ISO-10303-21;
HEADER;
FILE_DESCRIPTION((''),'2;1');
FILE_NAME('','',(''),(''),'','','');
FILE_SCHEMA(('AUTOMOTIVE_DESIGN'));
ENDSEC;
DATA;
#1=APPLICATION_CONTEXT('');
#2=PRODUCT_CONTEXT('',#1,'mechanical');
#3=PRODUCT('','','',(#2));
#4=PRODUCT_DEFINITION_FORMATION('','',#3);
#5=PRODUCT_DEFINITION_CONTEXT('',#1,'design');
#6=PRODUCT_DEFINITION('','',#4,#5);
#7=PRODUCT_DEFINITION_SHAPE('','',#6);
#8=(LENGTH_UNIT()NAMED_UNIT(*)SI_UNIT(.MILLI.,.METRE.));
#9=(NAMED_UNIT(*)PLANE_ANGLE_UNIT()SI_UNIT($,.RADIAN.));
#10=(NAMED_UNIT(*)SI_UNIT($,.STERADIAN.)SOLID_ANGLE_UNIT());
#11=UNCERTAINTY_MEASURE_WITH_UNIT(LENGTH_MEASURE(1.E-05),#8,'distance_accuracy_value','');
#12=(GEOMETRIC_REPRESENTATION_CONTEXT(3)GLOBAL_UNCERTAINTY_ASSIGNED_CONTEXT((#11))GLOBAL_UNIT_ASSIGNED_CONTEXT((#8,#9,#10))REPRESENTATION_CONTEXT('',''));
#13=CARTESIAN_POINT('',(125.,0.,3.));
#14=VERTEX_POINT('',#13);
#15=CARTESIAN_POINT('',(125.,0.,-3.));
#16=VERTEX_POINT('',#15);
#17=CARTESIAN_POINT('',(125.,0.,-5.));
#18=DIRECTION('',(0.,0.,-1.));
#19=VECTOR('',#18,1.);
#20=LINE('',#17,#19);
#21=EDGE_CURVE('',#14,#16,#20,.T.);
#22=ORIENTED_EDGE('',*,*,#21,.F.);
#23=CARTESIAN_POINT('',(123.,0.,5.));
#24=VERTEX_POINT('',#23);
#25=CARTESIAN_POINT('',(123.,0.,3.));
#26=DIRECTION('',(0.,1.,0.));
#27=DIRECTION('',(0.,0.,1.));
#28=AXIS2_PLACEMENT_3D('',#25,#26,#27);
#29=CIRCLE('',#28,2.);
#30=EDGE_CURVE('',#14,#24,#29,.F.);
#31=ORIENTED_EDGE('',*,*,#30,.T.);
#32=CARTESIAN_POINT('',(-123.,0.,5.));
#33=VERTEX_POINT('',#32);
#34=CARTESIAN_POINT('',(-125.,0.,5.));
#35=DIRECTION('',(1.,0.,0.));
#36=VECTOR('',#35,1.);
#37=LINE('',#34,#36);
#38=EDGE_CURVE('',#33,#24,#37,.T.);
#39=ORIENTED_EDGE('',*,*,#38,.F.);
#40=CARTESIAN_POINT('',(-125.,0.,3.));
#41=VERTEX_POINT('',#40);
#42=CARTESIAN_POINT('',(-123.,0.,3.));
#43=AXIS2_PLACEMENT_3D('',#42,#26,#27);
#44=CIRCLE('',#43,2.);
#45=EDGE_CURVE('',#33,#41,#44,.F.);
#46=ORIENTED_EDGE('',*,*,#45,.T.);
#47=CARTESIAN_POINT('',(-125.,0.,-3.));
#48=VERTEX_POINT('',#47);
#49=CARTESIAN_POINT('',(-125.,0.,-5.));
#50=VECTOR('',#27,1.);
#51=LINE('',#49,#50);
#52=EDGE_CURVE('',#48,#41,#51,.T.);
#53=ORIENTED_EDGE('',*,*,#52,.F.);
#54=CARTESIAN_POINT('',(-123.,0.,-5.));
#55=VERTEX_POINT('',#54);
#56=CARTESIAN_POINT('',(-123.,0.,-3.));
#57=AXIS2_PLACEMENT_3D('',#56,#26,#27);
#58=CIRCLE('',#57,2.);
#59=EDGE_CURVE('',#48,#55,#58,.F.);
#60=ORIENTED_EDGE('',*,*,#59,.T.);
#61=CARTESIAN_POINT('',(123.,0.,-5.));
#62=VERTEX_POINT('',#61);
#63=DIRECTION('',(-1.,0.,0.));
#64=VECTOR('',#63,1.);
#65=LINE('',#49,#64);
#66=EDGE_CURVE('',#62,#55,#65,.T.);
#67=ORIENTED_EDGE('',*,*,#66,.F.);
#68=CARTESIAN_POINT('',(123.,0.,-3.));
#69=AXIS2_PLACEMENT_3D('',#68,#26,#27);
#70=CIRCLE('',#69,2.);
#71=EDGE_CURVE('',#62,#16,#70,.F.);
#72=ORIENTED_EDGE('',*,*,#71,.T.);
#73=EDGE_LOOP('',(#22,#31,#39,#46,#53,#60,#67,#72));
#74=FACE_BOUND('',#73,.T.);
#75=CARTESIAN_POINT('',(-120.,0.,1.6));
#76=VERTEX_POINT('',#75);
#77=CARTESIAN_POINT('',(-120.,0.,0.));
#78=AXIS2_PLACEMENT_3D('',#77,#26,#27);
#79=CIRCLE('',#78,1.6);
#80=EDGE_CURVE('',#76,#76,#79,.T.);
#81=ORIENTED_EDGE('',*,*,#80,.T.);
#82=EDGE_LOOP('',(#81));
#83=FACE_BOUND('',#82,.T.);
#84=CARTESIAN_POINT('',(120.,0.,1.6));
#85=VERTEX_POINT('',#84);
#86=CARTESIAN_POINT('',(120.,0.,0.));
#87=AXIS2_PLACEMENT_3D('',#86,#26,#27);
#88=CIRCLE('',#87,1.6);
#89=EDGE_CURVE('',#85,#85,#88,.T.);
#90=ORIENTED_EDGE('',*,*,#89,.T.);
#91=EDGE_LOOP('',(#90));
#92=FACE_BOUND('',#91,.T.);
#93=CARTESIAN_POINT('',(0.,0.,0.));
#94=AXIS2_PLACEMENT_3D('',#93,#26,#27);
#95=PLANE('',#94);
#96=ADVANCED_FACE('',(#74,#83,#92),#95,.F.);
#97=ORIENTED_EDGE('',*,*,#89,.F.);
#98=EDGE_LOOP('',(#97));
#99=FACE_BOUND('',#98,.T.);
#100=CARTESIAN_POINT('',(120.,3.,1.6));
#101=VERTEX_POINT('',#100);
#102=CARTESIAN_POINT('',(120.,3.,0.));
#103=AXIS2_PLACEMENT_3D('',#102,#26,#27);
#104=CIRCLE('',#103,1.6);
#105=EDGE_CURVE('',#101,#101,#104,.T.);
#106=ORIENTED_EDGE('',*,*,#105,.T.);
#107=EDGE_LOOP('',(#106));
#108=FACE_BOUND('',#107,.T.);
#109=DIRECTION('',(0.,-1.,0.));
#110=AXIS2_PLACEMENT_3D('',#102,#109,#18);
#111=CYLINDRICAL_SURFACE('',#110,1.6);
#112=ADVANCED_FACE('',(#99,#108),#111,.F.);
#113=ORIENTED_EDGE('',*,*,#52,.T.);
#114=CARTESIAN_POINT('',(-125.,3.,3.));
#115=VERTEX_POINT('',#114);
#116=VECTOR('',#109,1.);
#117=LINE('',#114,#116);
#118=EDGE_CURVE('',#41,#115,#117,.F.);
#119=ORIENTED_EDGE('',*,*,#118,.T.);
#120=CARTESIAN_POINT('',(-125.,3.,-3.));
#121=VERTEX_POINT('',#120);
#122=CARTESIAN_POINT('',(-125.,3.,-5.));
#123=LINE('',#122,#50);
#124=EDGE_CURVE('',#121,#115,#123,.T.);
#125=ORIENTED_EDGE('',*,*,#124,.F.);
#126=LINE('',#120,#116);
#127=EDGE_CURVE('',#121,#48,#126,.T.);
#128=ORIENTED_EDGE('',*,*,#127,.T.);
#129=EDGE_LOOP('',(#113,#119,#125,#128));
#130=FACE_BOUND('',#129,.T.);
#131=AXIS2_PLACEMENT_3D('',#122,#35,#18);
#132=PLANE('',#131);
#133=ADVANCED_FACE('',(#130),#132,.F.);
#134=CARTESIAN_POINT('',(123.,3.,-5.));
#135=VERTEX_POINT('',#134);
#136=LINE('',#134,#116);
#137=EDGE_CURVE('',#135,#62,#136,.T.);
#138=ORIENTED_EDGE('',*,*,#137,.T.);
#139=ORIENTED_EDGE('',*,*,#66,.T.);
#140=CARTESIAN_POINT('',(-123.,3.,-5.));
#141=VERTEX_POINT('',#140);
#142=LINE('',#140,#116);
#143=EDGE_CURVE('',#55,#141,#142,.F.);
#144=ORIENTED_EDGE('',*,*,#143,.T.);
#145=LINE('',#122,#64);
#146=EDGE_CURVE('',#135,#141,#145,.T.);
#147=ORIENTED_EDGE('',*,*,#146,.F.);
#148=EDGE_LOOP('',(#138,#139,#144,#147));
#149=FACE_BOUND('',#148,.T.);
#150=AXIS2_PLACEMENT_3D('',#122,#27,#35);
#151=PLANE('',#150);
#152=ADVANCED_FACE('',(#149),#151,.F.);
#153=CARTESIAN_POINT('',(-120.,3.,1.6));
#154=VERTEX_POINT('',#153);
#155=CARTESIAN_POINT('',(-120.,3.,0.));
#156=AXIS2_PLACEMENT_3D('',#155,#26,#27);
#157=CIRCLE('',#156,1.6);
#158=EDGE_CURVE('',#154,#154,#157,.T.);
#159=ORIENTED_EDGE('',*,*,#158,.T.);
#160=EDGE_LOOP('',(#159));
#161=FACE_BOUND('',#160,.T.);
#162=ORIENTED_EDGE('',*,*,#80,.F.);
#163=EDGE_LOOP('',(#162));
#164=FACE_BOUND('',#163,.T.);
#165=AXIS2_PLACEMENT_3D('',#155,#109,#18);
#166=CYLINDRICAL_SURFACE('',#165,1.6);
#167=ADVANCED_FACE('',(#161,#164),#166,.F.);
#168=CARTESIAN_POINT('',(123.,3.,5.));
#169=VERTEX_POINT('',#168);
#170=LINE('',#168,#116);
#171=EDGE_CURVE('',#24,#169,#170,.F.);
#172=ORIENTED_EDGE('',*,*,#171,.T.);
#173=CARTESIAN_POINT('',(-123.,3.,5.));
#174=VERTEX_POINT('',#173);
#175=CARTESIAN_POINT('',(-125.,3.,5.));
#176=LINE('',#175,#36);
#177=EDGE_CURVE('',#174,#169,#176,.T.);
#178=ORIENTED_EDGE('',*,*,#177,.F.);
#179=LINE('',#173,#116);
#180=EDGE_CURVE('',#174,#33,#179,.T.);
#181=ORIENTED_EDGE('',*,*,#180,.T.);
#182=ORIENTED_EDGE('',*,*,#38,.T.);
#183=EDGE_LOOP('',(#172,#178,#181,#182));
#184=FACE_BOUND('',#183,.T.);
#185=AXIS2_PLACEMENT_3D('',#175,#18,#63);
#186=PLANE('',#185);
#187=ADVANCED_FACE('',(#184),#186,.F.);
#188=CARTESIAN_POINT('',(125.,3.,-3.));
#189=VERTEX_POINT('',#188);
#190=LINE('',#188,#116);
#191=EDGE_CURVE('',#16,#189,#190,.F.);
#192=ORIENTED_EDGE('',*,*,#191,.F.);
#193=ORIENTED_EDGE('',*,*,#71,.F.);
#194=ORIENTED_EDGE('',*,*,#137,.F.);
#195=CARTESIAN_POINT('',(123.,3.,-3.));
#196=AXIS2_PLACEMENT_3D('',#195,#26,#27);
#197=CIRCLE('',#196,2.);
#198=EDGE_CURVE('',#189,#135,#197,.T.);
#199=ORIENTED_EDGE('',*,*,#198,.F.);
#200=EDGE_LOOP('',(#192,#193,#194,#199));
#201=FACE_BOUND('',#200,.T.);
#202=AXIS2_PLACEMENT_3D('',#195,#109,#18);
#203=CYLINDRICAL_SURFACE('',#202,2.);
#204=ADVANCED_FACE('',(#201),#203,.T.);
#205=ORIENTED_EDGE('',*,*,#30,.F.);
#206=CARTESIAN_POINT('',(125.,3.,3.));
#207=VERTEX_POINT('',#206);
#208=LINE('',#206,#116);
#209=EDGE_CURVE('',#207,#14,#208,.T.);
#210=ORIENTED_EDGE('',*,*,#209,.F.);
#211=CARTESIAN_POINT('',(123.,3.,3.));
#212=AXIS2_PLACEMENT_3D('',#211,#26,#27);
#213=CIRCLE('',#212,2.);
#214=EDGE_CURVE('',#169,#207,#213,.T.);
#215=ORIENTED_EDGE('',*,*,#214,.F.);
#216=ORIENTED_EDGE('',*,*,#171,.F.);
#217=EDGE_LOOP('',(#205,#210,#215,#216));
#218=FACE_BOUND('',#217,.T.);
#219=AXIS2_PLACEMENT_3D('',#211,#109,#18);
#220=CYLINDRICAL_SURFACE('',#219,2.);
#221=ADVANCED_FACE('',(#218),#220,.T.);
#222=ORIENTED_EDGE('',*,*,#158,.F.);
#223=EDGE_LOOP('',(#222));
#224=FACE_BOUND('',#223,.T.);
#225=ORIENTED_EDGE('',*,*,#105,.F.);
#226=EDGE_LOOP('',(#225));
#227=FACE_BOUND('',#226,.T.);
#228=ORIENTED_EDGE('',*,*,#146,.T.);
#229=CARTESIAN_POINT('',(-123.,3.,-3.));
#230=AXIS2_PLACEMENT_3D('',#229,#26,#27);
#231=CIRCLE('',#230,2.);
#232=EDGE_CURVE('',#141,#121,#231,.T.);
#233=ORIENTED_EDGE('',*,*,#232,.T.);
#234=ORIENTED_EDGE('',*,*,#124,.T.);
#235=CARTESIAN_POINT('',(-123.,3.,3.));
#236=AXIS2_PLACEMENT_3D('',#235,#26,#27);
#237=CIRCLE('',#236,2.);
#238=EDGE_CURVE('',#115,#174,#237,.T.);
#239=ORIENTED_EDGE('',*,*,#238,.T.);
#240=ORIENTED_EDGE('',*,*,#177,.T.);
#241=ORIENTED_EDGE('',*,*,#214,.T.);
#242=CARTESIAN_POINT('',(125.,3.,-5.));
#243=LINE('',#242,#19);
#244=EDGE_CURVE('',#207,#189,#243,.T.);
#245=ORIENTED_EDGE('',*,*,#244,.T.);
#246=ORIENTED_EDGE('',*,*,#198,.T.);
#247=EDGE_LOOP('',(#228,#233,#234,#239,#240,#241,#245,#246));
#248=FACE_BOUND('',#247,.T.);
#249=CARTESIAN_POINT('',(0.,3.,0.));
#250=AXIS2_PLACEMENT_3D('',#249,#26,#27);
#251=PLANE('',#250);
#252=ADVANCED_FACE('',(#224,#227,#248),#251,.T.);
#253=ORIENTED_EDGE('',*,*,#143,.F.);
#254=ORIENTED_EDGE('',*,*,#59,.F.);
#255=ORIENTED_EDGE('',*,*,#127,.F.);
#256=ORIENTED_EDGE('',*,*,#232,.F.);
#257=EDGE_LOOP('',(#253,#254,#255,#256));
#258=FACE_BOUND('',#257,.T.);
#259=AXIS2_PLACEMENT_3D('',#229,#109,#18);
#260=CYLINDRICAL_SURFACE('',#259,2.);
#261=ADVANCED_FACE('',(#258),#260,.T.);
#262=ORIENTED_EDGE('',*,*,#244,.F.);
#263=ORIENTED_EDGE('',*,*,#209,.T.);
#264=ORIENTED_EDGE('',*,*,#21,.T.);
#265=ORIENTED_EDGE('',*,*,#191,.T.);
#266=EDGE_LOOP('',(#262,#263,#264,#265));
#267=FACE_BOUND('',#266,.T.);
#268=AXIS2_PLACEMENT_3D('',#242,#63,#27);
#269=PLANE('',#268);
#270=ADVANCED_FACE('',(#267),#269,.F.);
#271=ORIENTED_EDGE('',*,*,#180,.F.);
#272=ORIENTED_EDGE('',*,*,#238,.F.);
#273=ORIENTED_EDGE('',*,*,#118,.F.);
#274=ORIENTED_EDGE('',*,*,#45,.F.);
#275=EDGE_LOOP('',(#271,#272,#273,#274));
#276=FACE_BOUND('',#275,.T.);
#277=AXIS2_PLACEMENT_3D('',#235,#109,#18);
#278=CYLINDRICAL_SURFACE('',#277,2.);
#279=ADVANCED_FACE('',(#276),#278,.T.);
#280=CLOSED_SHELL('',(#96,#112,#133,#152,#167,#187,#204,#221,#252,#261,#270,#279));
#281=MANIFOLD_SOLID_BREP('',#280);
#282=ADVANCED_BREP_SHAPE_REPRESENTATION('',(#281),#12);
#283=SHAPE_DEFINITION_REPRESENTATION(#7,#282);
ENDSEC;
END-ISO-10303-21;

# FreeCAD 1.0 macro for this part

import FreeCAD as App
import Part
import Sketcher
from FreeCAD import Vector


def edges_at(feature, points):
    """Names of the edges that pass closest to the given points."""
    edges = feature.Shape.Edges
    near = lambda p: min(range(len(edges)), key=lambda i: edges[i].distToShape(Part.Vertex(*p))[0])
    return sorted({f"Edge{near(p) + 1}" for p in points})

doc = App.newDocument("Part")
body = doc.addObject("PartDesign::Body", "Body")

# Sketch on XZ plane
sketch1 = body.newObject("Sketcher::SketchObject", "Sketch")
sketch1.AttachmentSupport = (doc.getObject("XZ_Plane"), [""])
sketch1.MapMode = "FlatFace"
sketch1.addGeometry(Part.LineSegment(Vector(-125, -5, 0), Vector(-125, 5, 0)), False)
sketch1.addGeometry(Part.LineSegment(Vector(-125, 5, 0), Vector(125, 5, 0)), False)
sketch1.addGeometry(Part.LineSegment(Vector(125, 5, 0), Vector(125, -5, 0)), False)
sketch1.addGeometry(Part.LineSegment(Vector(125, -5, 0), Vector(-125, -5, 0)), False)
sketch1.addGeometry(Part.Circle(Vector(-120, 0, 0), Vector(0, 0, 1), 1.6), False)
sketch1.addGeometry(Part.Circle(Vector(120, 0, 0), Vector(0, 0, 1), 1.6), False)
sketch1.addConstraint(Sketcher.Constraint("Coincident", 0, 2, 1, 1))
sketch1.addConstraint(Sketcher.Constraint("Coincident", 1, 2, 2, 1))
sketch1.addConstraint(Sketcher.Constraint("Coincident", 2, 2, 3, 1))
sketch1.addConstraint(Sketcher.Constraint("Coincident", 3, 2, 0, 1))
sketch1.addConstraint(Sketcher.Constraint("Vertical", 0))
sketch1.addConstraint(Sketcher.Constraint("Horizontal", 1))
sketch1.addConstraint(Sketcher.Constraint("Vertical", 2))
sketch1.addConstraint(Sketcher.Constraint("Horizontal", 3))
sketch1.addConstraint(Sketcher.Constraint("Equal", 4, 5))
sketch1.addConstraint(Sketcher.Constraint("Symmetric", 4, 3, 5, 3, -1, 1))
sketch1.addConstraint(Sketcher.Constraint("Symmetric", 0, 2, 2, 2, -1, 1))
sketch1.addConstraint(Sketcher.Constraint("PointOnObject", 4, 3, -1))
sketch1.addConstraint(Sketcher.Constraint("Diameter", 4, 3.2))
sketch1.addConstraint(Sketcher.Constraint("DistanceX", 1, 1, 1, 2, 250.0))
sketch1.addConstraint(Sketcher.Constraint("DistanceY", 0, 1, 0, 2, 10.0))
sketch1.addConstraint(Sketcher.Constraint("DistanceX", 4, 3, -1, 1, 120.0))
pad1 = body.newObject("PartDesign::Pad", "Pad")
pad1.Profile = sketch1
pad1.Length = 3
pad1.Reversed = True
doc.recompute()

fillet = body.newObject("PartDesign::Fillet", "Fillet")
fillet.Base = (pad1, edges_at(pad1, [(-125, 1.5, 5)]))
fillet.Radius = 2
doc.recompute()

fillet2 = body.newObject("PartDesign::Fillet", "Fillet001")
fillet2.Base = (fillet, edges_at(fillet, [(125, 1.5, 5), (-125, 1.5, -5), (125, 1.5, -5)]))
fillet2.Radius = 2

doc.recompute()
